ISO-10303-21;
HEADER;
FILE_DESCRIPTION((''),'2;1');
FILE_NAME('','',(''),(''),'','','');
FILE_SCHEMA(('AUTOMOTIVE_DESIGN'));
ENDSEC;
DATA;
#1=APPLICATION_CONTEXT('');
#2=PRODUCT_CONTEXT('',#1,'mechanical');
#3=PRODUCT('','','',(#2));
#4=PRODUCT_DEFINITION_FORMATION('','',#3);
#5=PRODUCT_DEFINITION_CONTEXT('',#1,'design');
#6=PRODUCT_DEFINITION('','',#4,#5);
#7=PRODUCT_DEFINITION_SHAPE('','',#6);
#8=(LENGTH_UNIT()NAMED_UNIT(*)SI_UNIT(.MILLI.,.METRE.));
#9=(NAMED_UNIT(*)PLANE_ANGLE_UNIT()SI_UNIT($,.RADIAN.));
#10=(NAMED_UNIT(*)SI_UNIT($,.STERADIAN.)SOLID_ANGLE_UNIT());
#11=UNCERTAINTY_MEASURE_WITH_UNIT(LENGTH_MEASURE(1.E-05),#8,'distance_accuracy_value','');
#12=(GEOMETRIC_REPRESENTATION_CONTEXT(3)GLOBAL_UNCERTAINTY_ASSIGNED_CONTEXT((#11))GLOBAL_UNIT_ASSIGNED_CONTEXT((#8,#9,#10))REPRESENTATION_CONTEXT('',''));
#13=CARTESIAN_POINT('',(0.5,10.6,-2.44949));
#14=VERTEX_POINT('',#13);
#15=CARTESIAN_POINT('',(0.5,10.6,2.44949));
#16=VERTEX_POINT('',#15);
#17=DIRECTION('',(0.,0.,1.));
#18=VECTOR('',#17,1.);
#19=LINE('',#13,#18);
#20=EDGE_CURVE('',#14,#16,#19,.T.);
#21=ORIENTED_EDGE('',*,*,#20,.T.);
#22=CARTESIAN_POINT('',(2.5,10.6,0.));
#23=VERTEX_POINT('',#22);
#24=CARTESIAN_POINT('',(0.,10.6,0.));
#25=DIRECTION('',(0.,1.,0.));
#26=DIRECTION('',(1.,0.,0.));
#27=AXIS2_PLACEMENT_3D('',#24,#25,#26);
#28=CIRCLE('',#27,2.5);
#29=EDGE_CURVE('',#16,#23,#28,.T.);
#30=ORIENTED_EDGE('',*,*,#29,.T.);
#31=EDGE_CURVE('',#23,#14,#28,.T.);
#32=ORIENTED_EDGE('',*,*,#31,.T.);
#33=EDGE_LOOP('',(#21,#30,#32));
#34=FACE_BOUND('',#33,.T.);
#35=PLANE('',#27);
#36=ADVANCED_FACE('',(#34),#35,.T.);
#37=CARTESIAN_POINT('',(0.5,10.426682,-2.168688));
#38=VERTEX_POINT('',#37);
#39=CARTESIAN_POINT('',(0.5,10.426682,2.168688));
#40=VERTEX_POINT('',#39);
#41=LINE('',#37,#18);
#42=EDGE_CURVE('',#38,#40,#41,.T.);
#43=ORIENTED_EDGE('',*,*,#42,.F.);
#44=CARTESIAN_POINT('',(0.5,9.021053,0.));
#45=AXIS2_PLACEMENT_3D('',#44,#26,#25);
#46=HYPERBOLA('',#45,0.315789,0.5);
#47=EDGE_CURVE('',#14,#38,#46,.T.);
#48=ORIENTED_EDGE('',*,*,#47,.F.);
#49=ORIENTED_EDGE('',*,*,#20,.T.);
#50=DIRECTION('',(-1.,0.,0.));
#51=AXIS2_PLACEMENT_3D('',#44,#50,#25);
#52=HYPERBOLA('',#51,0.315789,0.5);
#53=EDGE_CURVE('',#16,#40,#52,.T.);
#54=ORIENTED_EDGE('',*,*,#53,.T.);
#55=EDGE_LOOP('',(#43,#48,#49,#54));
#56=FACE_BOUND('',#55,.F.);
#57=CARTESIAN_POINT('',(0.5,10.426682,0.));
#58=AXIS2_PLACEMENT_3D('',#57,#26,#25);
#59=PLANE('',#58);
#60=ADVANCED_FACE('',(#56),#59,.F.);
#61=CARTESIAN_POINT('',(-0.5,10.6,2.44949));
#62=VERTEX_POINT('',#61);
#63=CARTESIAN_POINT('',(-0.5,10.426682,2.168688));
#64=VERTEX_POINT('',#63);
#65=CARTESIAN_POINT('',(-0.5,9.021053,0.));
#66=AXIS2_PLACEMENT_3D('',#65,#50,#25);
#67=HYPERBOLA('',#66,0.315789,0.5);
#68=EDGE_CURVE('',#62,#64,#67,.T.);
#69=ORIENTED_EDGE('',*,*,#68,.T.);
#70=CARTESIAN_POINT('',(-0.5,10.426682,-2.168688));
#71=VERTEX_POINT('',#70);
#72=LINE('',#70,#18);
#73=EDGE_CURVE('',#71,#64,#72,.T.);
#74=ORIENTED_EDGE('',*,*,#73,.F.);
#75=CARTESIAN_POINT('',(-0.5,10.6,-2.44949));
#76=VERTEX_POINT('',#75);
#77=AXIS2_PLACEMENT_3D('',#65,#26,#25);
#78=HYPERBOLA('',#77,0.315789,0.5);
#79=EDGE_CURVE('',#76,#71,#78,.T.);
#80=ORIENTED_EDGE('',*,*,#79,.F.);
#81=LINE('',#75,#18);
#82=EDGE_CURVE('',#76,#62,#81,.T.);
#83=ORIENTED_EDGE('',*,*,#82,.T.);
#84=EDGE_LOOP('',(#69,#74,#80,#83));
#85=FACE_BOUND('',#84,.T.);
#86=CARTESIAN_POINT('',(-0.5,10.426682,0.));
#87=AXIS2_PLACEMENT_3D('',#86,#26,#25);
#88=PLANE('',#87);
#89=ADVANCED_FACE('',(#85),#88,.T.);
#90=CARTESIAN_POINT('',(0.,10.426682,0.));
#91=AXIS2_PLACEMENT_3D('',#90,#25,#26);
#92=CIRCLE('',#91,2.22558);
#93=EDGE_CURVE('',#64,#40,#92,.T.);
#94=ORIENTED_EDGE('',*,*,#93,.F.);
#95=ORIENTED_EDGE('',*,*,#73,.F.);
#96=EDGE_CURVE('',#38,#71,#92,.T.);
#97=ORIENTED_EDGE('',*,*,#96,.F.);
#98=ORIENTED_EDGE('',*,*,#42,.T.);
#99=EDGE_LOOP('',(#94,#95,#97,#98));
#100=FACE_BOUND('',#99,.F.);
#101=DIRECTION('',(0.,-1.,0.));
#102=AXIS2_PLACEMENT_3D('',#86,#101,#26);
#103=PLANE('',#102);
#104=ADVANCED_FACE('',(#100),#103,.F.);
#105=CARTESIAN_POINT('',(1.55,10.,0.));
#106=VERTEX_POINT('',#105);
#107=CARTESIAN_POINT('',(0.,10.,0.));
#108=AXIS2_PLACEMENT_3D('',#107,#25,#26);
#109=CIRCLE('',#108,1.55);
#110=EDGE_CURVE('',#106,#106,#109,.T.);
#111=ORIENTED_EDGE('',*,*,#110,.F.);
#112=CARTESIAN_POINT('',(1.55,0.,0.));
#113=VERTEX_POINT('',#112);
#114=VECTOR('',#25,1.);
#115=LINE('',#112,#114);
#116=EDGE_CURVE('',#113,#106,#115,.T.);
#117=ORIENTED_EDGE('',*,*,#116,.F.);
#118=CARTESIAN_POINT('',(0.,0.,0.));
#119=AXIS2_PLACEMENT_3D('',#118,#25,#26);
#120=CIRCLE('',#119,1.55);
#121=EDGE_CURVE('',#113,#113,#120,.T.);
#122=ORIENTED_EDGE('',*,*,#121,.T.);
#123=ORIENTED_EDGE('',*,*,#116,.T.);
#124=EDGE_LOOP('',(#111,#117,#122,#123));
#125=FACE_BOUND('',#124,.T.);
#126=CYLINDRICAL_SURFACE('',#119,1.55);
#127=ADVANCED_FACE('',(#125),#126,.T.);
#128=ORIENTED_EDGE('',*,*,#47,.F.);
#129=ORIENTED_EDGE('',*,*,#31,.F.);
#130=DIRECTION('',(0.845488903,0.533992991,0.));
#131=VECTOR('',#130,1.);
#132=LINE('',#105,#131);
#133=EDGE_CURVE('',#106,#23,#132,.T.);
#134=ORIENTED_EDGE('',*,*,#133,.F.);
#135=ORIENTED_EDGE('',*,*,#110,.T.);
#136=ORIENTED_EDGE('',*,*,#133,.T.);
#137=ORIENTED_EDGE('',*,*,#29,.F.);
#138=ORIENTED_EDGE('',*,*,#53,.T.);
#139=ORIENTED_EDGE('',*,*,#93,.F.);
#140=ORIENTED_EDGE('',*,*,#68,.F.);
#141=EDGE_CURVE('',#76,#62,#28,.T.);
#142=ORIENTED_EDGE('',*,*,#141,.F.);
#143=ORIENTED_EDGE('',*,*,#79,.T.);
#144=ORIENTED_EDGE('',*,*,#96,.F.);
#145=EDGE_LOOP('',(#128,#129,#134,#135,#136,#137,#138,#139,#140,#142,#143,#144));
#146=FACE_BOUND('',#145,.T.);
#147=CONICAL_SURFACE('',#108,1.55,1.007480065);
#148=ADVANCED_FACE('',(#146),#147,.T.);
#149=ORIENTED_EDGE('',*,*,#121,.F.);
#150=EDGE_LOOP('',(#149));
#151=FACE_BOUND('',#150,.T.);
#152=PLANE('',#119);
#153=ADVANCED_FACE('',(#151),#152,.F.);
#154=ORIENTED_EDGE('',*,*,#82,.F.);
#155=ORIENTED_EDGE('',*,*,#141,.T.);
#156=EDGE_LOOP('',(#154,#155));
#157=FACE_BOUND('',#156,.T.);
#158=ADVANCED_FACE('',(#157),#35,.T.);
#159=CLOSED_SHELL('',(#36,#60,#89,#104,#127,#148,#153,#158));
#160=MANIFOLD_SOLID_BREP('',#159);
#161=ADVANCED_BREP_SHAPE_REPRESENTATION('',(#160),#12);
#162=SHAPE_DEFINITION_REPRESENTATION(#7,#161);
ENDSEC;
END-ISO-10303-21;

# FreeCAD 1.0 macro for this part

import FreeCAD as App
import Part
import Sketcher
Q = App.Units.Quantity

doc = App.newDocument("Part")
body = doc.addObject("PartDesign::Body", "Body")

sketch1 = body.newObject("Sketcher::SketchObject", "Sketch")
sketch1.AttachmentSupport = (doc.getObject("XY_Plane"), [""])
sketch1.MapMode = "FlatFace"
sketch1.addGeometry(Part.LineSegment(App.Vector(0, 0, 0), App.Vector(1.6, 0, 0)), False)
sketch1.addGeometry(Part.LineSegment(App.Vector(1.6, 0, 0), App.Vector(1.6, 10, 0)), False)
sketch1.addGeometry(Part.LineSegment(App.Vector(1.6, 10, 0), App.Vector(2.5, 10.6, 0)), False)
sketch1.addGeometry(Part.LineSegment(App.Vector(2.5, 10.6, 0), App.Vector(0, 10.6, 0)), False)
sketch1.addGeometry(Part.LineSegment(App.Vector(0, 10.6, 0), App.Vector(0, 0, 0)), False)
sketch1.addConstraint(Sketcher.Constraint("Coincident", 0, 2, 1, 1))
sketch1.addConstraint(Sketcher.Constraint("Coincident", 1, 2, 2, 1))
sketch1.addConstraint(Sketcher.Constraint("Coincident", 2, 2, 3, 1))
sketch1.addConstraint(Sketcher.Constraint("Coincident", 3, 2, 4, 1))
sketch1.addConstraint(Sketcher.Constraint("Coincident", 4, 2, 0, 1))
sketch1.addConstraint(Sketcher.Constraint("Horizontal", 0))
sketch1.addConstraint(Sketcher.Constraint("Vertical", 1))
sketch1.addConstraint(Sketcher.Constraint("Horizontal", 3))
sketch1.addConstraint(Sketcher.Constraint("Vertical", 4))
sketch1.addConstraint(Sketcher.Constraint("Coincident", 4, 2, -1, 1))
sketch1.addConstraint(Sketcher.Constraint("DistanceY", 1, 1, 1, 2, Q("10 mm")))
sketch1.addConstraint(Sketcher.Constraint("DistanceX", 3, 2, 3, 1, Q("2.5 mm")))
sketch1.addConstraint(Sketcher.Constraint("DistanceY", 4, 2, 4, 1, Q("10.6 mm")))
sketch1.addConstraint(Sketcher.Constraint("DistanceX", 0, 1, 0, 2, Q("1.55 mm")))
revolution = body.newObject("PartDesign::Revolution", "Revolution")
revolution.Profile = sketch1
revolution.ReferenceAxis = (sketch1, ["V_Axis"])
revolution.Angle = 360

sketch2 = body.newObject("Sketcher::SketchObject", "Sketch001")
sketch2.AttachmentSupport = (doc.getObject("XY_Plane"), [""])
sketch2.MapMode = "FlatFace"
sketch2.addGeometry(Part.LineSegment(App.Vector(-0.5, 10.77, 0), App.Vector(-0.5, 10.43, 0)), False)
sketch2.addGeometry(Part.LineSegment(App.Vector(-0.5, 10.43, 0), App.Vector(0.5, 10.43, 0)), False)
sketch2.addGeometry(Part.LineSegment(App.Vector(0.5, 10.43, 0), App.Vector(0.5, 10.77, 0)), False)
sketch2.addGeometry(Part.LineSegment(App.Vector(0.5, 10.77, 0), App.Vector(-0.5, 10.77, 0)), False)
sketch2.addConstraint(Sketcher.Constraint("Coincident", 0, 2, 1, 1))
sketch2.addConstraint(Sketcher.Constraint("Coincident", 1, 2, 2, 1))
sketch2.addConstraint(Sketcher.Constraint("Coincident", 2, 2, 3, 1))
sketch2.addConstraint(Sketcher.Constraint("Coincident", 3, 2, 0, 1))
sketch2.addConstraint(Sketcher.Constraint("Vertical", 0))
sketch2.addConstraint(Sketcher.Constraint("Horizontal", 1))
sketch2.addConstraint(Sketcher.Constraint("Vertical", 2))
sketch2.addConstraint(Sketcher.Constraint("Horizontal", 3))
sketch2.addConstraint(Sketcher.Constraint("DistanceX", 1, 1, 1, 2, Q("1 mm")))
sketch2.addConstraint(Sketcher.Constraint("DistanceX", 0, 2, -1, 1, Q("0.5 mm")))
sketch2.addConstraint(Sketcher.Constraint("DistanceY", 0, 2, 0, 1, Q("0.346636 mm")))
sketch2.addConstraint(Sketcher.Constraint("DistanceY", -1, 1, 0, 2, Q("10.426682 mm")))
pocket1 = body.newObject("PartDesign::Pocket", "Pocket")
pocket1.Profile = sketch2
pocket1.Type = "ThroughAll"
pocket1.Midplane = True

doc.recompute()
